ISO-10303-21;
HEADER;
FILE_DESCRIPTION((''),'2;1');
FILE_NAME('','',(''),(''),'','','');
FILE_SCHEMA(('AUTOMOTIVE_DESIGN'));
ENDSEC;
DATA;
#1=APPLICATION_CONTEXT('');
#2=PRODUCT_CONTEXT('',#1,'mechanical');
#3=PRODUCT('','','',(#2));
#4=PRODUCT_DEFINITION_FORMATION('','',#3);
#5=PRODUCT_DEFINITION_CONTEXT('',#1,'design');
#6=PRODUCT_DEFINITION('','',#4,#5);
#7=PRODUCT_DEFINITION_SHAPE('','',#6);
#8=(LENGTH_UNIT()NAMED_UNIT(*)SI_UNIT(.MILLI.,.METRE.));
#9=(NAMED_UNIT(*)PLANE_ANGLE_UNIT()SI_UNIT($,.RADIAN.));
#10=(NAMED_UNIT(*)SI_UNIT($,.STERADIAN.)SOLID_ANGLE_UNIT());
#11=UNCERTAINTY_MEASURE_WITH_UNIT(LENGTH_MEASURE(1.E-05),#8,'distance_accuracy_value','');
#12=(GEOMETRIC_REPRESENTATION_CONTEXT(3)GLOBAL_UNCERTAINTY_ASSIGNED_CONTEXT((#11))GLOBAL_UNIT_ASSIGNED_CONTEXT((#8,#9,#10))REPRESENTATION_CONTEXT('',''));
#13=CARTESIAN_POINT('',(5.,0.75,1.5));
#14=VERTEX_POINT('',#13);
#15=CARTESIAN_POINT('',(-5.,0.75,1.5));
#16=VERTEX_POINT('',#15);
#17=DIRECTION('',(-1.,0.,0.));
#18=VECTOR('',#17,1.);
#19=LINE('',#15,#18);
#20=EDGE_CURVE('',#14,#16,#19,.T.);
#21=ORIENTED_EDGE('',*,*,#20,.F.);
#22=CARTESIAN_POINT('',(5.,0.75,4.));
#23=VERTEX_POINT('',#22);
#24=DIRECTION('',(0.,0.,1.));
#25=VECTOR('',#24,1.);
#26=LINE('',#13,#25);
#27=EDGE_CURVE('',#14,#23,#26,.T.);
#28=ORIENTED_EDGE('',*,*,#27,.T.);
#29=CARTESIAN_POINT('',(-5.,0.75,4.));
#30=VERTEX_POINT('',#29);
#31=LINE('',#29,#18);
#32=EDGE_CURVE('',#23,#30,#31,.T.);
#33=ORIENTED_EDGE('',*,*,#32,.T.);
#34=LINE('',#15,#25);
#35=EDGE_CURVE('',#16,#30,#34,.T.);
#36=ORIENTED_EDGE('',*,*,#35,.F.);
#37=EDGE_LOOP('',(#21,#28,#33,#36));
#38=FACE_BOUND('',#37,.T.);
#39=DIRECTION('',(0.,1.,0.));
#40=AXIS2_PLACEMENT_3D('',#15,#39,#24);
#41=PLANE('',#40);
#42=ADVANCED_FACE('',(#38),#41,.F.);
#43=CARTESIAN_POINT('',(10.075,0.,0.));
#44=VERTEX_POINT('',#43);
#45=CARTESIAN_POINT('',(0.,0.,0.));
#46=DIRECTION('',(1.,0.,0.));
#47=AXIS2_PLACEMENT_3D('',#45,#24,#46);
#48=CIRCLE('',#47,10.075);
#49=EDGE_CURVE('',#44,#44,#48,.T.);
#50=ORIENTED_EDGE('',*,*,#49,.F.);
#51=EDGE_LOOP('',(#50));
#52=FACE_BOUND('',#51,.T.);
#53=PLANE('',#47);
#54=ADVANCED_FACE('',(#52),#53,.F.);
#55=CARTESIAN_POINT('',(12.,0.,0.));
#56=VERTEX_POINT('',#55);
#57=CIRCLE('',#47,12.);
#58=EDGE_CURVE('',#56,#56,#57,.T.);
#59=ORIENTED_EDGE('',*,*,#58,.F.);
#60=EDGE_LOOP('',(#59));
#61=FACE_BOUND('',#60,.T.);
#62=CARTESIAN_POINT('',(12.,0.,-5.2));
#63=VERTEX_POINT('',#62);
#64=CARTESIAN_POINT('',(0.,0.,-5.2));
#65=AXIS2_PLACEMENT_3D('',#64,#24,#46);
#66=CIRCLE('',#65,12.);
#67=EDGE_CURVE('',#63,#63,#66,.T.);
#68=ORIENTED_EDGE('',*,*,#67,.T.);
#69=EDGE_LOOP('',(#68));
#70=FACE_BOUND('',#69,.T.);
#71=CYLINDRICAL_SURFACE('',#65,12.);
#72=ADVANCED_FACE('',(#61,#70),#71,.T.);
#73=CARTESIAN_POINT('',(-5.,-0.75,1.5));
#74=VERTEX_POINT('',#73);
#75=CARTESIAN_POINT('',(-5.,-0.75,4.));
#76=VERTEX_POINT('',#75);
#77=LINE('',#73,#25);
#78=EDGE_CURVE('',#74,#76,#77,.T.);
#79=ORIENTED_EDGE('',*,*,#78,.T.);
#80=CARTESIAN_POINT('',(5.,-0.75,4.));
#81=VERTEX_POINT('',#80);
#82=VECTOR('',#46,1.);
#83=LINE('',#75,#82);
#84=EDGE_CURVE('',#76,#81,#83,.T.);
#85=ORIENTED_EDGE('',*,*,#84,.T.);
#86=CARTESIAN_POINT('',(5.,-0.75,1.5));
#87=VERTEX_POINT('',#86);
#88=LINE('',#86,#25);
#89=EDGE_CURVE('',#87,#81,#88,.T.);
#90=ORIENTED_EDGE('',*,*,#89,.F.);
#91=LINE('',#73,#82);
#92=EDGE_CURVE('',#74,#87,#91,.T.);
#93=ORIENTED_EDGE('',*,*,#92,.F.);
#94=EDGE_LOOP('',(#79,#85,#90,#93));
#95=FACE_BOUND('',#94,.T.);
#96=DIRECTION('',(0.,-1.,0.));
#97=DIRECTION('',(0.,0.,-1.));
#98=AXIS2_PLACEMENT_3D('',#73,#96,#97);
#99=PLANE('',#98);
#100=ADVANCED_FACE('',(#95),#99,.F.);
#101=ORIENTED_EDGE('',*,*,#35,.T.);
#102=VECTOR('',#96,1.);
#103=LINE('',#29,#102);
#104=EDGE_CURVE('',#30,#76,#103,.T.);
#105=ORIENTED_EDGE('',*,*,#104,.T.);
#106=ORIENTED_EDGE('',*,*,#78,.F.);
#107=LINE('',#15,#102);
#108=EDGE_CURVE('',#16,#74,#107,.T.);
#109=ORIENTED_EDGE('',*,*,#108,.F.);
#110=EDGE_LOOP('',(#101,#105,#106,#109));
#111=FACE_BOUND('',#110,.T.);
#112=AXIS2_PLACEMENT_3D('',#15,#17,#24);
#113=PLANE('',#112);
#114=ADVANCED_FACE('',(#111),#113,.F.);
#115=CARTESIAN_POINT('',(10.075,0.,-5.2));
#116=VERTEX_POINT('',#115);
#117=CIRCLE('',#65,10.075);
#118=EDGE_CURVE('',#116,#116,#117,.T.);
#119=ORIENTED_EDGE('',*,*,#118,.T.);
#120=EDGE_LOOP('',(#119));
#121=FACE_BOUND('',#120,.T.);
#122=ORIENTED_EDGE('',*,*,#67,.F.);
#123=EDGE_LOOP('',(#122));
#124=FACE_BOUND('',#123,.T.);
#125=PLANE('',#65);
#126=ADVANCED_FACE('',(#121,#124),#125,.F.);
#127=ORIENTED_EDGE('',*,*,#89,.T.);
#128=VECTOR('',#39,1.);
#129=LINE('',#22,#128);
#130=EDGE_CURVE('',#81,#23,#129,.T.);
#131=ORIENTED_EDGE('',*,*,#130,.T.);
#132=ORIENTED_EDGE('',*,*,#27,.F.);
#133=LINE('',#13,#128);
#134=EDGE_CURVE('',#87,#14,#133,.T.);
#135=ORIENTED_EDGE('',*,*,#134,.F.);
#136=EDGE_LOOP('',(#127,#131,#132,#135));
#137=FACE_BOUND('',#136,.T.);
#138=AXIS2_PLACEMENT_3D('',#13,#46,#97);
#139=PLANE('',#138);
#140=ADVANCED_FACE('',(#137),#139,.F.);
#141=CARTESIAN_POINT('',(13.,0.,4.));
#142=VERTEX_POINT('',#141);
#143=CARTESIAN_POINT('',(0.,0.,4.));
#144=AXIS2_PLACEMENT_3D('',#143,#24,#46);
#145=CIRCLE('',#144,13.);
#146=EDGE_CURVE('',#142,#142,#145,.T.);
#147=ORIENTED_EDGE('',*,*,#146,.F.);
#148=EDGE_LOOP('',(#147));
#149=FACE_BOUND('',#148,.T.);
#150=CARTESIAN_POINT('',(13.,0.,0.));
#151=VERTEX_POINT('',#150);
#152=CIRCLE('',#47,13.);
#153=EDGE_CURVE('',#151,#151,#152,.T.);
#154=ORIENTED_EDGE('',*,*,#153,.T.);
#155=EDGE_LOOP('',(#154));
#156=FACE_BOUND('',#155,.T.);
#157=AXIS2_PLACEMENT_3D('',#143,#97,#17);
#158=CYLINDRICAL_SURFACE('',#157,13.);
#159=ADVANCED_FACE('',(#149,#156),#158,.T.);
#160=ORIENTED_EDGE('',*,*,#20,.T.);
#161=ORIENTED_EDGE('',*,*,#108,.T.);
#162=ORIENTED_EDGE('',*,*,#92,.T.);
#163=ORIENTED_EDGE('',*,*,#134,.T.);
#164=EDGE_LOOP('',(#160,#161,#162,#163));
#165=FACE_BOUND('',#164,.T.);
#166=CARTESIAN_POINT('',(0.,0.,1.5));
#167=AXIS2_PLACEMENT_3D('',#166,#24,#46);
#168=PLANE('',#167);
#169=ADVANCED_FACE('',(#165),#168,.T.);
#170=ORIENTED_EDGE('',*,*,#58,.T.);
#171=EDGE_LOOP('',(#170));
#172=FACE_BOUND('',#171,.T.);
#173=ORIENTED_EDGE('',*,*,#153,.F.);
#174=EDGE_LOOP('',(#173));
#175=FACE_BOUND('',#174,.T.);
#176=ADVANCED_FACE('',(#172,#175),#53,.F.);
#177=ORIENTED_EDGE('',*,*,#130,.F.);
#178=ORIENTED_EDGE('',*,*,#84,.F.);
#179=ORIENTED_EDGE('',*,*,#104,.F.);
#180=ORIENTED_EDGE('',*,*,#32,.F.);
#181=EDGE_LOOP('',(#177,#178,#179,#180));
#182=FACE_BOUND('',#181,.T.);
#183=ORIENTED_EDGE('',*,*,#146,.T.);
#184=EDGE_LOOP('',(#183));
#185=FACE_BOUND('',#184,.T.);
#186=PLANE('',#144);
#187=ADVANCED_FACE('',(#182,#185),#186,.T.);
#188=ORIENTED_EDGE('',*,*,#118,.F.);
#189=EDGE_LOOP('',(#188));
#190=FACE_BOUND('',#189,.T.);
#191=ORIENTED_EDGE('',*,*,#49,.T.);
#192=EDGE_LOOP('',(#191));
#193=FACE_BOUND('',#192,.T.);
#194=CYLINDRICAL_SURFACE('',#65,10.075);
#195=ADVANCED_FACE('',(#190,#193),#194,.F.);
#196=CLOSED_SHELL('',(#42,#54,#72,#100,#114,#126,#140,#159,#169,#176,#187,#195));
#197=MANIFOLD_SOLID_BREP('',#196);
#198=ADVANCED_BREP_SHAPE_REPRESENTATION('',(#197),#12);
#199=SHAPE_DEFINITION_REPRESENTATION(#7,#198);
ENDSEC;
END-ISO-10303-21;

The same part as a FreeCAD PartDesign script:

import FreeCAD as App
import Part
import Sketcher
from FreeCAD import Vector
Q = App.Units.Quantity

doc = App.newDocument("Part")
params = doc.addObject("Spreadsheet::Sheet", "Params")
for row, (alias, value) in enumerate([
    ("sketch1_diameter", "26 mm"),
    ("pad1_length", "4 mm"),
    ("sketch2_diameter", "24 mm"),
    ("sketch2_diameter2", "20.15 mm"),
    ("pad2_length", "5.2 mm"),
    ("sketch3_width", "10 mm"),
    ("sketch3_height", "1.5 mm"),
    ("pocket1_length", "2.5 mm"),
], start=1):
    params.set(f"A{row}", alias)
    params.set(f"B{row}", "=" + value)
    params.setAlias(f"B{row}", alias)

body = doc.addObject("PartDesign::Body", "Body")

# Sketch on XY plane
sketch1 = body.newObject("Sketcher::SketchObject", "Sketch")
sketch1.AttachmentSupport = (doc.getObject("XY_Plane"), [""])
sketch1.MapMode = "FlatFace"
sketch1.addGeometry(Part.Circle(Vector(0, 0, 0), Vector(0, 0, 1), 13), False)
sketch1.addConstraint([
    Sketcher.Constraint("Coincident", 0, 3, -1, 1),
    Sketcher.Constraint("Diameter", 0, Q("26 mm")),
])
sketch1.setExpression("Constraints[1]", "Params.sketch1_diameter")
pad1 = body.newObject("PartDesign::Pad", "Pad")
pad1.Profile = sketch1
pad1.setExpression("Length", "Params.pad1_length")

# Sketch on XY plane
sketch2 = body.newObject("Sketcher::SketchObject", "Sketch001")
sketch2.AttachmentSupport = (doc.getObject("XY_Plane"), [""])
sketch2.MapMode = "FlatFace"
sketch2.addGeometry([
    Part.Circle(Vector(0, 0, 0), Vector(0, 0, 1), 12),
    Part.Circle(Vector(0, 0, 0), Vector(0, 0, 1), 10.075),
], False)
sketch2.addConstraint([
    Sketcher.Constraint("Coincident", 0, 3, -1, 1),
    Sketcher.Constraint("Coincident", 1, 3, -1, 1),
    Sketcher.Constraint("Diameter", 0, Q("24 mm")),
    Sketcher.Constraint("Diameter", 1, Q("20.15 mm")),
])
sketch2.setExpression("Constraints[2]", "Params.sketch2_diameter")
sketch2.setExpression("Constraints[3]", "Params.sketch2_diameter2")
pad2 = body.newObject("PartDesign::Pad", "Pad001")
pad2.Profile = sketch2
pad2.setExpression("Length", "Params.pad2_length")
pad2.Reversed = True

# Sketch on XY plane
sketch3 = body.newObject("Sketcher::SketchObject", "Sketch002")
sketch3.AttachmentSupport = (doc.getObject("XY_Plane"), [""])
sketch3.MapMode = "FlatFace"
sketch3.AttachmentOffset = App.Placement(Vector(0, 0, 4), App.Rotation())
sketch3.addGeometry([
    Part.LineSegment(Vector(-5, 0.75, 0), Vector(-5, -0.75, 0)),
    Part.LineSegment(Vector(-5, -0.75, 0), Vector(5, -0.75, 0)),
    Part.LineSegment(Vector(5, -0.75, 0), Vector(5, 0.75, 0)),
    Part.LineSegment(Vector(5, 0.75, 0), Vector(-5, 0.75, 0)),
], False)
sketch3.addConstraint([
    Sketcher.Constraint("Coincident", 0, 2, 1, 1),
    Sketcher.Constraint("Coincident", 1, 2, 2, 1),
    Sketcher.Constraint("Coincident", 2, 2, 3, 1),
    Sketcher.Constraint("Coincident", 3, 2, 0, 1),
    Sketcher.Constraint("Vertical", 0),
    Sketcher.Constraint("Horizontal", 1),
    Sketcher.Constraint("Vertical", 2),
    Sketcher.Constraint("Horizontal", 3),
    Sketcher.Constraint("Symmetric", 0, 2, 2, 2, -1, 1),
    Sketcher.Constraint("DistanceX", 1, 1, 1, 2, Q("10 mm")),
    Sketcher.Constraint("DistanceY", 0, 2, 0, 1, Q("1.5 mm")),
])
sketch3.setExpression("Constraints[9]", "Params.sketch3_width")
sketch3.setExpression("Constraints[10]", "Params.sketch3_height")
pocket1 = body.newObject("PartDesign::Pocket", "Pocket")
pocket1.Profile = sketch3
pocket1.setExpression("Length", "Params.pocket1_length")

doc.recompute()
